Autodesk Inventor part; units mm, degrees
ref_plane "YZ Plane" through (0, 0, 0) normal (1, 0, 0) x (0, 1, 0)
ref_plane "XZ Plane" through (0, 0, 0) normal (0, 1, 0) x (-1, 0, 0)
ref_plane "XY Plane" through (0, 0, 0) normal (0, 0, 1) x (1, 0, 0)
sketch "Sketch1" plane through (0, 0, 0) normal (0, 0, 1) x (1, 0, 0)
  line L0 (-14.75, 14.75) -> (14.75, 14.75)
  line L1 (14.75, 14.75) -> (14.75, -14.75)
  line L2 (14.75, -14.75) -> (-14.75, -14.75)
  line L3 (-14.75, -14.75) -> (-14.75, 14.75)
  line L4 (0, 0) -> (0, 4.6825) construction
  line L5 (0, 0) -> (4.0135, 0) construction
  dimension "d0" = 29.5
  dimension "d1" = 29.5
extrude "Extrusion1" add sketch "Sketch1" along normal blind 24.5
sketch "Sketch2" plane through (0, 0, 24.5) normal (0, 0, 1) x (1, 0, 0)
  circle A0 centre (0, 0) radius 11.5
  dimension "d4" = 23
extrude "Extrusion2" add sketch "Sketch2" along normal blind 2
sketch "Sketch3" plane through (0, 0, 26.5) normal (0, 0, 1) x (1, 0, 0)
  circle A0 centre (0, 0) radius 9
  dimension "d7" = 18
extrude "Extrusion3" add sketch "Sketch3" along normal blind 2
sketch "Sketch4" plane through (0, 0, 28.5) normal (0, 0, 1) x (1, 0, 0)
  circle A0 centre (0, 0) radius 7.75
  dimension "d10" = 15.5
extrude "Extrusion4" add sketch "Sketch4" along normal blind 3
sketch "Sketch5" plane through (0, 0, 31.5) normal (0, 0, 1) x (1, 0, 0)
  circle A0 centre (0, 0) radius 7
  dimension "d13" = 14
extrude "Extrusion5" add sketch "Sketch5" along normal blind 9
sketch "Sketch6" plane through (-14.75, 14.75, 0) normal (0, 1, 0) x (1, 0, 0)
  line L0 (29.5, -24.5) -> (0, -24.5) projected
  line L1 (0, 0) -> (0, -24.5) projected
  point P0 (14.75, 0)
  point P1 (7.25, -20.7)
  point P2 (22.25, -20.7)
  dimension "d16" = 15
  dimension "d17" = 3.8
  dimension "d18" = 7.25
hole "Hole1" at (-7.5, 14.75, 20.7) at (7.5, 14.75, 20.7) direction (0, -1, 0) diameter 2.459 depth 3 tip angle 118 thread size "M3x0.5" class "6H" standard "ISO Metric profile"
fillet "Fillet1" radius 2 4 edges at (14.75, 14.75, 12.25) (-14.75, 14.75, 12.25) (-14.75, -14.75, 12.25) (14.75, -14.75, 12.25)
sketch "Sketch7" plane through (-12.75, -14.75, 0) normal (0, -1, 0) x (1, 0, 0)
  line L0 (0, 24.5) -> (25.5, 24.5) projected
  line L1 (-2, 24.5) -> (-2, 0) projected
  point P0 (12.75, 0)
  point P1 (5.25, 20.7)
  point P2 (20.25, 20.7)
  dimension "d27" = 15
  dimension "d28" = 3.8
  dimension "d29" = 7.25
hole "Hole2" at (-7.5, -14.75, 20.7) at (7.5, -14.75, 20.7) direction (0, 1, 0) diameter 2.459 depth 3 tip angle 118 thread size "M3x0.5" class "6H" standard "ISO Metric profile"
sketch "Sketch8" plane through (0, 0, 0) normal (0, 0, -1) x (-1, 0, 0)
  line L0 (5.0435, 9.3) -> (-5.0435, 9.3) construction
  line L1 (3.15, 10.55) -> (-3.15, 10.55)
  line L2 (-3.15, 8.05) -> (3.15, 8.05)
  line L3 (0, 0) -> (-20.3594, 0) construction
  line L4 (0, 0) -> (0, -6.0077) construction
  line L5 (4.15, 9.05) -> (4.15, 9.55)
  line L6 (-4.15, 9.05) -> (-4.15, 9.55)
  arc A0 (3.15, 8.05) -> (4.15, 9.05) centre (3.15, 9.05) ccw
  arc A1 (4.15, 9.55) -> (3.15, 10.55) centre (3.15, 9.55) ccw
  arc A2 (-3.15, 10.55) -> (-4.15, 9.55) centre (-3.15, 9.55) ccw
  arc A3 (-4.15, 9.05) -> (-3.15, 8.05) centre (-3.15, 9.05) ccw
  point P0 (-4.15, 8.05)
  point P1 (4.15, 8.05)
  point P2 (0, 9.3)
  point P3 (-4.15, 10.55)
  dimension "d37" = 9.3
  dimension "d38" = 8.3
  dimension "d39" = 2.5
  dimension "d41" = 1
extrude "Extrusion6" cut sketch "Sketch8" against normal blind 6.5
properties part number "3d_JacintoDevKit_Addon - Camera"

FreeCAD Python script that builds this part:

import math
import FreeCAD as App
import Part
import Sketcher

V = App.Vector
Q = App.Units.Quantity


def edges_at(feature, points):
    """Names of the edges that pass closest to the given points."""
    edges = feature.Shape.Edges
    near = lambda p: min(range(len(edges)), key=lambda i: edges[i].distToShape(Part.Vertex(*p))[0])
    return sorted({f"Edge{near(p) + 1}" for p in points})


def add_polygon(sketch, points):
    """Adds a closed chain of lines whose ends are joined by coincident constraints."""
    first, n = sketch.GeometryCount, len(points)
    for a, b in zip(points, points[1:] + points[:1]):
        sketch.addGeometry(Part.LineSegment(App.Vector(*a, 0), App.Vector(*b, 0)), False)
    for i in range(n):
        sketch.addConstraint(Sketcher.Constraint("Coincident", first + i, 2, first + (i + 1) % n, 1))

doc = App.newDocument("Part")
body = doc.addObject("PartDesign::Body", "Body")

sketch1 = body.newObject("Sketcher::SketchObject", "Sketch")
sketch1.AttachmentSupport = (doc.getObject("XY_Plane"), [""])
sketch1.MapMode = "FlatFace"
add_polygon(sketch1, [(14.75, 14.75), (-14.75, 14.75), (-14.75, -14.75), (14.75, -14.75)])
sketch1.addConstraint(Sketcher.Constraint("Horizontal", 0))
sketch1.addConstraint(Sketcher.Constraint("Vertical", 1))
sketch1.addConstraint(Sketcher.Constraint("Horizontal", 2))
sketch1.addConstraint(Sketcher.Constraint("Vertical", 3))
sketch1.addConstraint(Sketcher.Constraint("Symmetric", 0, 2, 2, 2, -1, 1))
sketch1.addConstraint(Sketcher.Constraint("Equal", 2, 1))
sketch1.addConstraint(Sketcher.Constraint("DistanceX", 0, 2, 0, 1, Q("29.5 mm")))
pad1 = body.newObject("PartDesign::Pad", "Pad")
pad1.Profile = sketch1
pad1.Length = 24.5

sketch2 = body.newObject("Sketcher::SketchObject", "Sketch001")
sketch2.AttachmentSupport = (doc.getObject("XY_Plane"), [""])
sketch2.MapMode = "FlatFace"
sketch2.AttachmentOffset = App.Placement(V(0, 0, 24.5), App.Rotation())
sketch2.addGeometry(Part.Circle(V(0, 0, 0), V(0, 0, 1), 11.5), False)
sketch2.addConstraint(Sketcher.Constraint("Coincident", 0, 3, -1, 1))
sketch2.addConstraint(Sketcher.Constraint("Diameter", 0, Q("23 mm")))
pad2 = body.newObject("PartDesign::Pad", "Pad001")
pad2.Profile = sketch2
pad2.Length = 2

sketch3 = body.newObject("Sketcher::SketchObject", "Sketch002")
sketch3.AttachmentSupport = (doc.getObject("XY_Plane"), [""])
sketch3.MapMode = "FlatFace"
sketch3.AttachmentOffset = App.Placement(V(0, 0, 26.5), App.Rotation())
sketch3.addGeometry(Part.Circle(V(0, 0, 0), V(0, 0, 1), 9), False)
sketch3.addConstraint(Sketcher.Constraint("Coincident", 0, 3, -1, 1))
sketch3.addConstraint(Sketcher.Constraint("Diameter", 0, Q("18 mm")))
pad3 = body.newObject("PartDesign::Pad", "Pad002")
pad3.Profile = sketch3
pad3.Length = 2

sketch4 = body.newObject("Sketcher::SketchObject", "Sketch003")
sketch4.AttachmentSupport = (doc.getObject("XY_Plane"), [""])
sketch4.MapMode = "FlatFace"
sketch4.AttachmentOffset = App.Placement(V(0, 0, 28.5), App.Rotation())
sketch4.addGeometry(Part.Circle(V(0, 0, 0), V(0, 0, 1), 7.75), False)
sketch4.addConstraint(Sketcher.Constraint("Coincident", 0, 3, -1, 1))
sketch4.addConstraint(Sketcher.Constraint("Diameter", 0, Q("15.5 mm")))
pad4 = body.newObject("PartDesign::Pad", "Pad003")
pad4.Profile = sketch4
pad4.Length = 3

sketch5 = body.newObject("Sketcher::SketchObject", "Sketch004")
sketch5.AttachmentSupport = (doc.getObject("XY_Plane"), [""])
sketch5.MapMode = "FlatFace"
sketch5.AttachmentOffset = App.Placement(V(0, 0, 31.5), App.Rotation())
sketch5.addGeometry(Part.Circle(V(0, 0, 0), V(0, 0, 1), 7), False)
sketch5.addConstraint(Sketcher.Constraint("Coincident", 0, 3, -1, 1))
sketch5.addConstraint(Sketcher.Constraint("Diameter", 0, Q("14 mm")))
pad5 = body.newObject("PartDesign::Pad", "Pad004")
pad5.Profile = sketch5
pad5.Length = 9

sketch6 = body.newObject("Sketcher::SketchObject", "Sketch005")
sketch6.AttachmentSupport = (doc.getObject("XZ_Plane"), [""])
sketch6.MapMode = "FlatFace"
sketch6.AttachmentOffset = App.Placement(V(0, 0, -14.75), App.Rotation())
sketch6.addGeometry(Part.Circle(V(-7.5, 20.7, 0), V(0, 0, 1), 1.2295), False)
sketch6.addGeometry(Part.Circle(V(7.5, 20.7, 0), V(0, 0, 1), 1.2295), False)
sketch6.addConstraint(Sketcher.Constraint("Equal", 0, 1))
sketch6.addConstraint(Sketcher.Constraint("Symmetric", 0, 3, 1, 3, -2))
sketch6.addConstraint(Sketcher.Constraint("Diameter", 0, Q("2.459 mm")))
sketch6.addConstraint(Sketcher.Constraint("DistanceX", 0, 3, 1, 3, Q("15 mm")))
sketch6.addConstraint(Sketcher.Constraint("DistanceY", -1, 1, 0, 3, Q("20.7 mm")))
doc.recompute()
hole = body.newObject("PartDesign::Hole", "Hole")
hole.Profile = sketch6
hole.ThreadType = "None"
hole.Diameter = 2.459
hole.DepthType = "Dimension"
hole.Depth = 3
hole.DrillPoint = "Angled"
hole.DrillPointAngle = 118
hole.Reversed = True
doc.recompute()

fillet = body.newObject("PartDesign::Fillet", "Fillet")
fillet.Base = (hole, edges_at(hole, [
    (14.75, 14.75, 12.25),
    (-14.75, 14.75, 12.25),
    (-14.75, -14.75, 12.25),
    (14.75, -14.75, 12.25),
]))
fillet.Radius = 2

sketch7 = body.newObject("Sketcher::SketchObject", "Sketch006")
sketch7.AttachmentSupport = (doc.getObject("XZ_Plane"), [""])
sketch7.MapMode = "FlatFace"
sketch7.AttachmentOffset = App.Placement(V(0, 0, 14.75), App.Rotation())
sketch7.addGeometry(Part.Circle(V(-7.5, 20.7, 0), V(0, 0, 1), 1.2295), False)
sketch7.addGeometry(Part.Circle(V(7.5, 20.7, 0), V(0, 0, 1), 1.2295), False)
sketch7.addConstraint(Sketcher.Constraint("Equal", 0, 1))
sketch7.addConstraint(Sketcher.Constraint("Symmetric", 0, 3, 1, 3, -2))
sketch7.addConstraint(Sketcher.Constraint("Diameter", 0, Q("2.459 mm")))
sketch7.addConstraint(Sketcher.Constraint("DistanceX", 0, 3, 1, 3, Q("15 mm")))
sketch7.addConstraint(Sketcher.Constraint("DistanceY", -1, 1, 0, 3, Q("20.7 mm")))
doc.recompute()
hole2 = body.newObject("PartDesign::Hole", "Hole001")
hole2.Profile = sketch7
hole2.ThreadType = "None"
hole2.Diameter = 2.459
hole2.DepthType = "Dimension"
hole2.Depth = 3
hole2.DrillPoint = "Angled"
hole2.DrillPointAngle = 118

sketch8 = body.newObject("Sketcher::SketchObject", "Sketch007")
sketch8.AttachmentSupport = (doc.getObject("XY_Plane"), [""])
sketch8.MapMode = "FlatFace"
sketch8.addGeometry(Part.ArcOfCircle(Part.Circle(V(-3.15, 9.55, 0), V(0, 0, 1), 1), math.radians(90), math.radians(180)), False)
sketch8.addGeometry(Part.LineSegment(V(-3.15, 10.55, 0), V(3.15, 10.55, 0)), False)
sketch8.addGeometry(Part.ArcOfCircle(Part.Circle(V(3.15, 9.55, 0), V(0, 0, 1), 1), math.radians(0), math.radians(90)), False)
sketch8.addGeometry(Part.LineSegment(V(4.15, 9.55, 0), V(4.15, 9.05, 0)), False)
sketch8.addGeometry(Part.ArcOfCircle(Part.Circle(V(3.15, 9.05, 0), V(0, 0, 1), 1), math.radians(-90), math.radians(0)), False)
sketch8.addGeometry(Part.LineSegment(V(3.15, 8.05, 0), V(-3.15, 8.05, 0)), False)
sketch8.addGeometry(Part.ArcOfCircle(Part.Circle(V(-3.15, 9.05, 0), V(0, 0, 1), 1), math.radians(180), math.radians(270)), False)
sketch8.addGeometry(Part.LineSegment(V(-4.15, 9.05, 0), V(-4.15, 9.55, 0)), False)
sketch8.addConstraint(Sketcher.Constraint("Tangent", 0, 1, 1, 1))
sketch8.addConstraint(Sketcher.Constraint("Tangent", 1, 2, 2, 2))
sketch8.addConstraint(Sketcher.Constraint("Tangent", 2, 1, 3, 1))
sketch8.addConstraint(Sketcher.Constraint("Tangent", 3, 2, 4, 2))
sketch8.addConstraint(Sketcher.Constraint("Tangent", 4, 1, 5, 1))
sketch8.addConstraint(Sketcher.Constraint("Tangent", 5, 2, 6, 2))
sketch8.addConstraint(Sketcher.Constraint("Tangent", 6, 1, 7, 1))
sketch8.addConstraint(Sketcher.Constraint("Tangent", 7, 2, 0, 2))
sketch8.addConstraint(Sketcher.Constraint("Horizontal", 1))
sketch8.addConstraint(Sketcher.Constraint("Vertical", 3))
sketch8.addConstraint(Sketcher.Constraint("Horizontal", 5))
sketch8.addConstraint(Sketcher.Constraint("Vertical", 7))
sketch8.addConstraint(Sketcher.Constraint("Equal", 0, 2))
sketch8.addConstraint(Sketcher.Constraint("Equal", 2, 4))
sketch8.addConstraint(Sketcher.Constraint("Equal", 4, 6))
sketch8.addConstraint(Sketcher.Constraint("Radius", 0, Q("1 mm")))
sketch8.addConstraint(Sketcher.Constraint("DistanceY", 4, 1, 1, 2, Q("2.5 mm")))
sketch8.addConstraint(Sketcher.Constraint("DistanceX", 1, 1, 1, 2, Q("6.3 mm")))
sketch8.addConstraint(Sketcher.Constraint("DistanceX", 0, 3, -1, 1, Q("3.15 mm")))
sketch8.addConstraint(Sketcher.Constraint("DistanceY", -1, 1, 0, 3, Q("9.55 mm")))
pocket1 = body.newObject("PartDesign::Pocket", "Pocket")
pocket1.Profile = sketch8
pocket1.Length = 6.5
pocket1.Reversed = True

doc.recompute()
